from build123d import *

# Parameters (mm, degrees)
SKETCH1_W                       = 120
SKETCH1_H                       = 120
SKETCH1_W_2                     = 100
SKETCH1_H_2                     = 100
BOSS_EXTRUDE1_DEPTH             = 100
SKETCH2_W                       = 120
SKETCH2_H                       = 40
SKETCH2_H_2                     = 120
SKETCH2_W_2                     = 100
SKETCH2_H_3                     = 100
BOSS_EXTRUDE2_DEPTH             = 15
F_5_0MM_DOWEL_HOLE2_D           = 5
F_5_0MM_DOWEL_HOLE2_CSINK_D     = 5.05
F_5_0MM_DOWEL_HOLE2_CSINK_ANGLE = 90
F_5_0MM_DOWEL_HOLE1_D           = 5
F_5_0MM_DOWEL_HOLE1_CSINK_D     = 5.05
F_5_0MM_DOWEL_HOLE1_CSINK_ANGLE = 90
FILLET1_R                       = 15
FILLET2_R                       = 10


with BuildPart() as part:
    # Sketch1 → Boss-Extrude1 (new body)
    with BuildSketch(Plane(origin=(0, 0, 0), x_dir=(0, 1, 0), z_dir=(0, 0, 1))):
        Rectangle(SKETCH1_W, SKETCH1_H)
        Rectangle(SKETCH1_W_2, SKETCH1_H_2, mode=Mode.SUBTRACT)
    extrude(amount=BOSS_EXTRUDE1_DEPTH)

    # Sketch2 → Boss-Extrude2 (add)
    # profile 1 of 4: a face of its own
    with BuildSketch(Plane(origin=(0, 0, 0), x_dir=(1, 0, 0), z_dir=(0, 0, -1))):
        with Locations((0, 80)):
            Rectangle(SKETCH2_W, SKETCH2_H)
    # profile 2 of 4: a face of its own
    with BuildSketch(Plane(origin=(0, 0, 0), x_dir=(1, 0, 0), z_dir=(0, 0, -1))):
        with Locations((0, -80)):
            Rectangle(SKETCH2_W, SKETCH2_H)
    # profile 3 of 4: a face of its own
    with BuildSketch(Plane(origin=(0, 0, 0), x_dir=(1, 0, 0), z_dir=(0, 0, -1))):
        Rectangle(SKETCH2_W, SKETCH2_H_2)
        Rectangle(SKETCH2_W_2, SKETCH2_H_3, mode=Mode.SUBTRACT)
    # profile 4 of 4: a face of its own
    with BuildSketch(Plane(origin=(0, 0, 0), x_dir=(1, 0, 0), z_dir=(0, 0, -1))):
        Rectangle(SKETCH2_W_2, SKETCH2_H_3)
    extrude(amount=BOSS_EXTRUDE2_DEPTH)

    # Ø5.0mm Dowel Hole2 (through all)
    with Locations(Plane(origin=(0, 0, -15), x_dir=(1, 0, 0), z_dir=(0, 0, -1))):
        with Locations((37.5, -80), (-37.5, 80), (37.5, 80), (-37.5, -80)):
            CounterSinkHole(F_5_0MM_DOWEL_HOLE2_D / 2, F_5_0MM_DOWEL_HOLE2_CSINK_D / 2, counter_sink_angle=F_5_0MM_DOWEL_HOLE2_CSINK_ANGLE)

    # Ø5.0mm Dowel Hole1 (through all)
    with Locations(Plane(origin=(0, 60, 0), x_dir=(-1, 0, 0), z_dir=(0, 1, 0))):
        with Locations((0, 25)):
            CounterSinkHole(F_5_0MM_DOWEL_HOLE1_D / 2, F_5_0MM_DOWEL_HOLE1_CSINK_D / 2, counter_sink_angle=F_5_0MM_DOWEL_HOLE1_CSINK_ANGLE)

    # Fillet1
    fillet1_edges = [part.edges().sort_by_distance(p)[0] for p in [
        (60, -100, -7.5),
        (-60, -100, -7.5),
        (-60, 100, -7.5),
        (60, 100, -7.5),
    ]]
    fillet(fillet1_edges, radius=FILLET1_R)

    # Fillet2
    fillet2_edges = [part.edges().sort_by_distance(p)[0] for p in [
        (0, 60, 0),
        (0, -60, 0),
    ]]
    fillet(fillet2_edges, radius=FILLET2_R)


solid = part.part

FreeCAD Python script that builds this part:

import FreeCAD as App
import Part
import Sketcher

V = App.Vector


def edges_at(feature, points):
    """Names of the edges that pass closest to the given points."""
    edges = feature.Shape.Edges
    near = lambda p: min(range(len(edges)), key=lambda i: edges[i].distToShape(Part.Vertex(*p))[0])
    return sorted({f"Edge{near(p) + 1}" for p in points})

doc = App.newDocument("Part")
body = doc.addObject("PartDesign::Body", "Body")

sketch1 = body.newObject("Sketcher::SketchObject", "Sketch")
sketch1.AttachmentSupport = (doc.getObject("XY_Plane"), [""])
sketch1.MapMode = "FlatFace"
sketch1.addGeometry(Part.LineSegment(V(-60, -60, 0), V(60, -60, 0)), False)
sketch1.addGeometry(Part.LineSegment(V(60, -60, 0), V(60, 60, 0)), False)
sketch1.addGeometry(Part.LineSegment(V(60, 60, 0), V(-60, 60, 0)), False)
sketch1.addGeometry(Part.LineSegment(V(-60, 60, 0), V(-60, -60, 0)), False)
sketch1.addGeometry(Part.LineSegment(V(50, 50, 0), V(50, -50, 0)), False)
sketch1.addGeometry(Part.LineSegment(V(50, -50, 0), V(-50, -50, 0)), False)
sketch1.addGeometry(Part.LineSegment(V(-50, -50, 0), V(-50, 50, 0)), False)
sketch1.addGeometry(Part.LineSegment(V(-50, 50, 0), V(50, 50, 0)), False)
sketch1.addConstraint(Sketcher.Constraint("Coincident", 0, 2, 1, 1))
sketch1.addConstraint(Sketcher.Constraint("Coincident", 1, 2, 2, 1))
sketch1.addConstraint(Sketcher.Constraint("Coincident", 2, 2, 3, 1))
sketch1.addConstraint(Sketcher.Constraint("Coincident", 3, 2, 0, 1))
sketch1.addConstraint(Sketcher.Constraint("Coincident", 4, 2, 5, 1))
sketch1.addConstraint(Sketcher.Constraint("Coincident", 5, 2, 6, 1))
sketch1.addConstraint(Sketcher.Constraint("Coincident", 6, 2, 7, 1))
sketch1.addConstraint(Sketcher.Constraint("Coincident", 7, 2, 4, 1))
sketch1.addConstraint(Sketcher.Constraint("Horizontal", 0))
sketch1.addConstraint(Sketcher.Constraint("Vertical", 1))
sketch1.addConstraint(Sketcher.Constraint("Horizontal", 2))
sketch1.addConstraint(Sketcher.Constraint("Vertical", 3))
sketch1.addConstraint(Sketcher.Constraint("Vertical", 4))
sketch1.addConstraint(Sketcher.Constraint("Horizontal", 5))
sketch1.addConstraint(Sketcher.Constraint("Vertical", 6))
sketch1.addConstraint(Sketcher.Constraint("Horizontal", 7))
sketch1.addConstraint(Sketcher.Constraint("Symmetric", 0, 2, 2, 2, -1, 1))
sketch1.addConstraint(Sketcher.Constraint("Symmetric", 4, 2, 6, 2, -1, 1))
sketch1.addConstraint(Sketcher.Constraint("Equal", 2, 1))
sketch1.addConstraint(Sketcher.Constraint("Equal", 7, 4))
sketch1.addConstraint(Sketcher.Constraint("DistanceX", 0, 1, 0, 2, 120.0))
sketch1.addConstraint(Sketcher.Constraint("DistanceX", 5, 2, 5, 1, 100.0))
pad1 = body.newObject("PartDesign::Pad", "Pad")
pad1.Profile = sketch1
pad1.Length = 100

sketch2 = body.newObject("Sketcher::SketchObject", "Sketch001")
sketch2.AttachmentSupport = (doc.getObject("XY_Plane"), [""])
sketch2.MapMode = "FlatFace"
sketch2.addGeometry(Part.LineSegment(V(-60, -100, 0), V(-60, 100, 0)), False)
sketch2.addGeometry(Part.LineSegment(V(-60, 100, 0), V(60, 100, 0)), False)
sketch2.addGeometry(Part.LineSegment(V(60, 100, 0), V(60, -100, 0)), False)
sketch2.addGeometry(Part.LineSegment(V(60, -100, 0), V(-60, -100, 0)), False)
sketch2.addConstraint(Sketcher.Constraint("Coincident", 0, 2, 1, 1))
sketch2.addConstraint(Sketcher.Constraint("Coincident", 1, 2, 2, 1))
sketch2.addConstraint(Sketcher.Constraint("Coincident", 2, 2, 3, 1))
sketch2.addConstraint(Sketcher.Constraint("Coincident", 3, 2, 0, 1))
sketch2.addConstraint(Sketcher.Constraint("Vertical", 0))
sketch2.addConstraint(Sketcher.Constraint("Horizontal", 1))
sketch2.addConstraint(Sketcher.Constraint("Vertical", 2))
sketch2.addConstraint(Sketcher.Constraint("Horizontal", 3))
sketch2.addConstraint(Sketcher.Constraint("Symmetric", 0, 2, 2, 2, -1, 1))
sketch2.addConstraint(Sketcher.Constraint("DistanceX", 1, 1, 1, 2, 120.0))
sketch2.addConstraint(Sketcher.Constraint("DistanceY", 0, 1, 0, 2, 200.0))
pad2 = body.newObject("PartDesign::Pad", "Pad001")
pad2.Profile = sketch2
pad2.Length = 15
pad2.Reversed = True

sketch3 = body.newObject("Sketcher::SketchObject", "Sketch002")
sketch3.AttachmentSupport = (doc.getObject("XY_Plane"), [""])
sketch3.MapMode = "FlatFace"
sketch3.AttachmentOffset = App.Placement(V(0, 0, -15), App.Rotation())
sketch3.addGeometry(Part.Circle(V(37.5, 80, 0), V(0, 0, 1), 2.5), False)
sketch3.addGeometry(Part.Circle(V(-37.5, -80, 0), V(0, 0, 1), 2.5), False)
sketch3.addGeometry(Part.Circle(V(37.5, -80, 0), V(0, 0, 1), 2.5), False)
sketch3.addGeometry(Part.Circle(V(-37.5, 80, 0), V(0, 0, 1), 2.5), False)
sketch3.addConstraint(Sketcher.Constraint("Equal", 0, 1))
sketch3.addConstraint(Sketcher.Constraint("Equal", 1, 2))
sketch3.addConstraint(Sketcher.Constraint("Equal", 2, 3))
sketch3.addConstraint(Sketcher.Constraint("Symmetric", 0, 3, 1, 3, -1, 1))
sketch3.addConstraint(Sketcher.Constraint("Symmetric", 2, 3, 3, 3, -1, 1))
sketch3.addConstraint(Sketcher.Constraint("Symmetric", 1, 3, 2, 3, -2))
sketch3.addConstraint(Sketcher.Constraint("Diameter", 0, 5.0))
sketch3.addConstraint(Sketcher.Constraint("DistanceY", -1, 1, 0, 3, 80.0))
sketch3.addConstraint(Sketcher.Constraint("DistanceX", 1, 3, 0, 3, 75.0))
doc.recompute()
hole = body.newObject("PartDesign::Hole", "Hole")
hole.Profile = sketch3
hole.ThreadType = "None"
hole.Diameter = 5
hole.DepthType = "ThroughAll"
hole.HoleCutType = "Countersink"
hole.HoleCutDiameter = 5.05
hole.HoleCutCountersinkAngle = 90
hole.Reversed = True

sketch4 = body.newObject("Sketcher::SketchObject", "Sketch003")
sketch4.AttachmentSupport = (doc.getObject("XZ_Plane"), [""])
sketch4.MapMode = "FlatFace"
sketch4.AttachmentOffset = App.Placement(V(0, 0, -60), App.Rotation())
sketch4.addGeometry(Part.Circle(V(0, 25, 0), V(0, 0, 1), 2.5), False)
sketch4.addConstraint(Sketcher.Constraint("PointOnObject", 0, 3, -2))
sketch4.addConstraint(Sketcher.Constraint("Diameter", 0, 5.0))
sketch4.addConstraint(Sketcher.Constraint("DistanceY", -1, 1, 0, 3, 25.0))
doc.recompute()
hole2 = body.newObject("PartDesign::Hole", "Hole001")
hole2.Profile = sketch4
hole2.ThreadType = "None"
hole2.Diameter = 5
hole2.DepthType = "ThroughAll"
hole2.HoleCutType = "Countersink"
hole2.HoleCutDiameter = 5.05
hole2.HoleCutCountersinkAngle = 90
hole2.Reversed = True
doc.recompute()

fillet = body.newObject("PartDesign::Fillet", "Fillet")
fillet.Base = (hole2, edges_at(hole2, [
    (60, -100, -7.5),
    (-60, -100, -7.5),
    (-60, 100, -7.5),
    (60, 100, -7.5),
]))
fillet.Radius = 15
doc.recompute()

fillet2 = body.newObject("PartDesign::Fillet", "Fillet001")
fillet2.Base = (fillet, edges_at(fillet, [(0, 60, 0), (0, -60, 0)]))
fillet2.Radius = 10

doc.recompute()
